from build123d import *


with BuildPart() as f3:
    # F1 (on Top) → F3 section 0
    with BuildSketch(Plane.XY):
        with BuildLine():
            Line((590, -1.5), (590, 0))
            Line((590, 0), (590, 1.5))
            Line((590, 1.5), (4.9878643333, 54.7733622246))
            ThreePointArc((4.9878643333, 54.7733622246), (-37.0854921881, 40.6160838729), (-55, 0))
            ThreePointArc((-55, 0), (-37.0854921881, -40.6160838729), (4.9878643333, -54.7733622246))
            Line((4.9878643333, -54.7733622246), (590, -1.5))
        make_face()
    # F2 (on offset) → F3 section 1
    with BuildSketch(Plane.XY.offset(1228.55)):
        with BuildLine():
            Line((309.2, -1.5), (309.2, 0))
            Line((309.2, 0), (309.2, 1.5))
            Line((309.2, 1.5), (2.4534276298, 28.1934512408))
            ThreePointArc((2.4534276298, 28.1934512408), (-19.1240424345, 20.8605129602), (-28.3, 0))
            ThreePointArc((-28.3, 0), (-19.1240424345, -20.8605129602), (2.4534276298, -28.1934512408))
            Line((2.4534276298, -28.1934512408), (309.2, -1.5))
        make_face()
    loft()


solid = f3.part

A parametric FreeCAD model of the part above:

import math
import FreeCAD as App
import Part
import Sketcher

V = App.Vector

doc = App.newDocument("Part")
params = doc.addObject("Spreadsheet::Sheet", "Params")
for row, (alias, value) in enumerate([
    ("sketch1_radius", "55 mm"),
    ("sketch1_height", "3 mm"),
    ("sketch2_radius", "28.3 mm"),
    ("sketch2_height", "3 mm"),
], start=1):
    params.set(f"A{row}", alias)
    params.set(f"B{row}", "=" + value)
    params.setAlias(f"B{row}", alias)

body = doc.addObject("PartDesign::Body", "Body")

sketch1 = body.newObject("Sketcher::SketchObject", "Sketch")
sketch1.AttachmentSupport = (doc.getObject("XY_Plane"), [""])
sketch1.MapMode = "FlatFace"
sketch1.addGeometry(Part.LineSegment(V(590, -1.5, 0), V(590, 1.5, 0)), False)
sketch1.addGeometry(Part.LineSegment(V(590, 1.5, 0), V(5, 54.8, 0)), False)
sketch1.addGeometry(Part.ArcOfCircle(Part.Circle(V(0, 0, 0), V(0, 0, 1), 55), math.radians(85), math.radians(180)), False)
sketch1.addGeometry(Part.ArcOfCircle(Part.Circle(V(0, 0, 0), V(0, 0, 1), 55), math.radians(180), math.radians(275)), False)
sketch1.addGeometry(Part.LineSegment(V(5, -54.8, 0), V(590, -1.5, 0)), False)
sketch1.addConstraint(Sketcher.Constraint("Coincident", 0, 2, 1, 1))
sketch1.addConstraint(Sketcher.Constraint("Tangent", 1, 2, 2, 1))
sketch1.addConstraint(Sketcher.Constraint("Tangent", 2, 2, 3, 1))
sketch1.addConstraint(Sketcher.Constraint("Tangent", 3, 2, 4, 1))
sketch1.addConstraint(Sketcher.Constraint("Coincident", 4, 2, 0, 1))
sketch1.addConstraint(Sketcher.Constraint("Vertical", 0))
sketch1.addConstraint(Sketcher.Constraint("Coincident", 2, 3, -1, 1))
sketch1.addConstraint(Sketcher.Constraint("Equal", 2, 3))
sketch1.addConstraint(Sketcher.Constraint("PointOnObject", 2, 2, -1))
sketch1.addConstraint(Sketcher.Constraint("Radius", 2, 55.0))
sketch1.addConstraint(Sketcher.Constraint("DistanceY", 0, 1, 0, 2, 3.0))
sketch1.addConstraint(Sketcher.Constraint("DistanceX", -1, 1, 0, 2, 590.0))
sketch1.addConstraint(Sketcher.Constraint("DistanceY", -1, 1, 0, 2, 1.5))
sketch1.setExpression("Constraints[9]", "Params.sketch1_radius")
sketch1.setExpression("Constraints[10]", "Params.sketch1_height")

sketch2 = body.newObject("Sketcher::SketchObject", "Sketch001")
sketch2.AttachmentSupport = (doc.getObject("XY_Plane"), [""])
sketch2.MapMode = "FlatFace"
sketch2.AttachmentOffset = App.Placement(V(0, 0, 1228.55), App.Rotation())
sketch2.addGeometry(Part.LineSegment(V(309.2, -1.5, 0), V(309.2, 1.5, 0)), False)
sketch2.addGeometry(Part.LineSegment(V(309.2, 1.5, 0), V(2.5, 28.2, 0)), False)
sketch2.addGeometry(Part.ArcOfCircle(Part.Circle(V(0, 0, 0), V(0, 0, 1), 28.3), math.radians(85), math.radians(180)), False)
sketch2.addGeometry(Part.ArcOfCircle(Part.Circle(V(0, 0, 0), V(0, 0, 1), 28.3), math.radians(180), math.radians(275)), False)
sketch2.addGeometry(Part.LineSegment(V(2.5, -28.2, 0), V(309.2, -1.5, 0)), False)
sketch2.addConstraint(Sketcher.Constraint("Coincident", 0, 2, 1, 1))
sketch2.addConstraint(Sketcher.Constraint("Tangent", 1, 2, 2, 1))
sketch2.addConstraint(Sketcher.Constraint("Tangent", 2, 2, 3, 1))
sketch2.addConstraint(Sketcher.Constraint("Tangent", 3, 2, 4, 1))
sketch2.addConstraint(Sketcher.Constraint("Coincident", 4, 2, 0, 1))
sketch2.addConstraint(Sketcher.Constraint("Vertical", 0))
sketch2.addConstraint(Sketcher.Constraint("Coincident", 2, 3, -1, 1))
sketch2.addConstraint(Sketcher.Constraint("Equal", 2, 3))
sketch2.addConstraint(Sketcher.Constraint("PointOnObject", 2, 2, -1))
sketch2.addConstraint(Sketcher.Constraint("Vertical", 1, 2, 3, 2))
sketch2.addConstraint(Sketcher.Constraint("Radius", 2, 28.3))
sketch2.addConstraint(Sketcher.Constraint("DistanceY", 0, 1, 0, 2, 3.0))
sketch2.addConstraint(Sketcher.Constraint("DistanceX", -1, 1, 0, 2, 309.2))
sketch2.setExpression("Constraints[10]", "Params.sketch2_radius")
sketch2.setExpression("Constraints[11]", "Params.sketch2_height")

additiveloft = body.newObject("PartDesign::AdditiveLoft", "AdditiveLoft")
additiveloft.Profile = sketch1
additiveloft.Sections = [sketch2]

doc.recompute()
